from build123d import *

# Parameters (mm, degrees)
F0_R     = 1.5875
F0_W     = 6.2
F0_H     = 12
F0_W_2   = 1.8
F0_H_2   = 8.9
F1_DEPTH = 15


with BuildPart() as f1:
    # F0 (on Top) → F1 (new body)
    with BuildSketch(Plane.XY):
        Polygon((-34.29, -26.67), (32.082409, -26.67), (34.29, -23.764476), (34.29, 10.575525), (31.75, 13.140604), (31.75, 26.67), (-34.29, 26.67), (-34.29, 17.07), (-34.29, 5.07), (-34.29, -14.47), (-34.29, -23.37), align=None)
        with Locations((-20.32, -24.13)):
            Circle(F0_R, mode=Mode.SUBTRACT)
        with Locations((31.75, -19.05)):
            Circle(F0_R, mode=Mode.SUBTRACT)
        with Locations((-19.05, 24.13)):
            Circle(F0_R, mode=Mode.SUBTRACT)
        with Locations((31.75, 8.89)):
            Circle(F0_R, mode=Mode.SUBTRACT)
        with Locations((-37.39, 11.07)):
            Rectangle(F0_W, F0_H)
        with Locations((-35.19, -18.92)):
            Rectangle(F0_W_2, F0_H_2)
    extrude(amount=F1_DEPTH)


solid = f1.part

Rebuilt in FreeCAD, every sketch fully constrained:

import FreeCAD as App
import Part
import Sketcher
from FreeCAD import Vector


def add_polygon(sketch, points):
    """Adds a closed chain of lines whose ends are joined by coincident constraints."""
    first, n = sketch.GeometryCount, len(points)
    for a, b in zip(points, points[1:] + points[:1]):
        sketch.addGeometry(Part.LineSegment(App.Vector(*a, 0), App.Vector(*b, 0)), False)
    for i in range(n):
        sketch.addConstraint(Sketcher.Constraint("Coincident", first + i, 2, first + (i + 1) % n, 1))

doc = App.newDocument("Part")
body = doc.addObject("PartDesign::Body", "Body")

# Sketch on XY plane
sketch1 = body.newObject("Sketcher::SketchObject", "Sketch")
sketch1.AttachmentSupport = (doc.getObject("XY_Plane"), [""])
sketch1.MapMode = "FlatFace"
add_polygon(sketch1, [(-34.29, -26.67), (32.082409, -26.67), (34.29, -23.764476), (34.29, 10.575525), (31.75, 13.140604), (31.75, 26.67), (-34.29, 26.67), (-34.29, 17.07), (-40.49, 17.07), (-40.49, 5.07), (-34.29, 5.07), (-34.29, -14.47), (-36.09, -14.47), (-36.09, -23.37), (-34.29, -23.37)])  # lines 0-14
sketch1.addGeometry(Part.Circle(Vector(-20.32, -24.13, 0), Vector(0, 0, 1), 1.5875), False)  # 15
sketch1.addGeometry(Part.Circle(Vector(31.75, -19.05, 0), Vector(0, 0, 1), 1.5875), False)  # 16
sketch1.addGeometry(Part.Circle(Vector(-19.05, 24.13, 0), Vector(0, 0, 1), 1.5875), False)  # 17
sketch1.addGeometry(Part.Circle(Vector(31.75, 8.89, 0), Vector(0, 0, 1), 1.5875), False)  # 18
sketch1.addConstraint([
    Sketcher.Constraint("Horizontal", 0),
    Sketcher.Constraint("Vertical", 2),
    Sketcher.Constraint("Vertical", 4),
    Sketcher.Constraint("Horizontal", 5),
    Sketcher.Constraint("Vertical", 6),
    Sketcher.Constraint("Horizontal", 7),
    Sketcher.Constraint("Vertical", 8),
    Sketcher.Constraint("Horizontal", 9),
    Sketcher.Constraint("Vertical", 10),
    Sketcher.Constraint("Horizontal", 11),
    Sketcher.Constraint("Vertical", 12),
    Sketcher.Constraint("Horizontal", 13),
    Sketcher.Constraint("Vertical", 14),
    Sketcher.Constraint("Equal", 15, 16),
    Sketcher.Constraint("Equal", 16, 17),
    Sketcher.Constraint("Equal", 17, 18),
    Sketcher.Constraint("Symmetric", 5, 2, 14, 2, -1),
    Sketcher.Constraint("Vertical", 16, 3, 18, 3),
    Sketcher.Constraint("Vertical", 18, 3, 3, 2),
    Sketcher.Constraint("Vertical", 6, 2, 9, 2),
    Sketcher.Constraint("DistanceY", 8, 2, 8, 1, 12.0),
    Sketcher.Constraint("Diameter", 15, 3.175),
    Sketcher.Constraint("DistanceX", 7, 2, 7, 1, 6.2),
    Sketcher.Constraint("DistanceX", 11, 2, 11, 1, 1.8),
    Sketcher.Constraint("DistanceY", 6, 2, 6, 1, 9.6),
    Sketcher.Constraint("DistanceY", 12, 2, 12, 1, 8.9),
    Sketcher.Constraint("DistanceY", 14, 2, 14, 1, 3.3),
    Sketcher.Constraint("DistanceX", 5, 2, 5, 1, 66.04),
    Sketcher.Constraint("DistanceY", 2, 1, 2, 2, 34.340001),
    Sketcher.Constraint("DistanceY", 10, 2, 10, 1, 19.54),
    Sketcher.Constraint("DistanceX", 17, 3, 16, 3, 50.8),
    Sketcher.Constraint("DistanceY", 0, 2, 17, 3, 50.8),
    Sketcher.Constraint("DistanceY", 15, 3, 5, 2, 50.8),
    Sketcher.Constraint("DistanceX", 15, 3, -1, 1, 20.32),
    Sketcher.Constraint("DistanceX", -1, 1, 16, 3, 31.75),
    Sketcher.Constraint("DistanceY", 16, 3, -1, 1, 19.05),
    Sketcher.Constraint("DistanceY", -1, 1, 18, 3, 8.89),
    Sketcher.Constraint("DistanceX", -1, 1, 1, 2, 34.29),
    Sketcher.Constraint("DistanceX", 0, 1, 0, 2, 66.372409),
    Sketcher.Constraint("Distance", 3, 3.60988),
    Sketcher.Constraint("DistanceY", 4, 1, 4, 2, 13.529396),
])
pad1 = body.newObject("PartDesign::Pad", "Pad")
pad1.Profile = sketch1
pad1.Length = 15

doc.recompute()
